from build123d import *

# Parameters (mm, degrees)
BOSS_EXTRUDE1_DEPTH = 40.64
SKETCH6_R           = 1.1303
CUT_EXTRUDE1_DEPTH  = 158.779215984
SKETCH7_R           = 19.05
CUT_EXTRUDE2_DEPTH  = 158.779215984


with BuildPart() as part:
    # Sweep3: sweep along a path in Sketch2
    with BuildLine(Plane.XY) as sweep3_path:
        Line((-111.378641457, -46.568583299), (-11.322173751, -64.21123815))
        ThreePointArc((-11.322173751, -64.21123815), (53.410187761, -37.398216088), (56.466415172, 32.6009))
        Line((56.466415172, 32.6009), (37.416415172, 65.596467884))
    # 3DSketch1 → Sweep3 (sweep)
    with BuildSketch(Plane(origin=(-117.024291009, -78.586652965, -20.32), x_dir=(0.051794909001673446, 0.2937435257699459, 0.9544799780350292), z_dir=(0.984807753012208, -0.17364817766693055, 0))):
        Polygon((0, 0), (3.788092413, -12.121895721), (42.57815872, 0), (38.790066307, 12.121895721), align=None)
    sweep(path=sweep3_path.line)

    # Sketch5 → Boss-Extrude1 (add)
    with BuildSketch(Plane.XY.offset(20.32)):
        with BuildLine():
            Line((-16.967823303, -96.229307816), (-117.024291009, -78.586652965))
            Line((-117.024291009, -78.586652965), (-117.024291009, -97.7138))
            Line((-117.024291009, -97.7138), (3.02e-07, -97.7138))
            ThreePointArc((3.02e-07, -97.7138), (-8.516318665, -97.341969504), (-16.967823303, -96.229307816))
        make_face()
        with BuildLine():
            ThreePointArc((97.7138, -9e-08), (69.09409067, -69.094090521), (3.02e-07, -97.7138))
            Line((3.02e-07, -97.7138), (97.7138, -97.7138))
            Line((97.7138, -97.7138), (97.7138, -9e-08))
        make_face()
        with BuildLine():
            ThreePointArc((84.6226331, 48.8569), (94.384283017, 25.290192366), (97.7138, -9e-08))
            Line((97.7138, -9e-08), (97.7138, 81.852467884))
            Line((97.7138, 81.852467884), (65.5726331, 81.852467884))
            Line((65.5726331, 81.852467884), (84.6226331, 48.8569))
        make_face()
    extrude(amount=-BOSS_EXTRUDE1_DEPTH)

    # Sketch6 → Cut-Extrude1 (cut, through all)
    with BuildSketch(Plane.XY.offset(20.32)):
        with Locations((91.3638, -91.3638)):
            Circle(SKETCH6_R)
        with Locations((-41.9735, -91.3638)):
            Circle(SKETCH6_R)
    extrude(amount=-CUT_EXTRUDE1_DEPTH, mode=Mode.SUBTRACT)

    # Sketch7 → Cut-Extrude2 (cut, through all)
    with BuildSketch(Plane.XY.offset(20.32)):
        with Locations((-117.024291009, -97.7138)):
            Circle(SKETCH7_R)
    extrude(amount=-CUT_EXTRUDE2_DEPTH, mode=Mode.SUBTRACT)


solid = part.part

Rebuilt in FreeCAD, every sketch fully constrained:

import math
import FreeCAD as App
import Part
import Sketcher
Q = App.Units.Quantity

doc = App.newDocument("Part")
body = doc.addObject("PartDesign::Body", "Body")

sketch1 = doc.addObject("Sketcher::SketchObject", "Sketch")
body.addObject(sketch1)
sketch1.Placement = App.Placement(App.Vector(-117.024291, -78.586653, -20.32), App.Rotation(App.Vector(0.051794909, 0.293743526, 0.954479978), App.Vector(-0.165743709, -0.939979282, 0.298274993), App.Vector(0.984807753, -0.173648178, 0), "ZXY"))
sketch1.addGeometry(Part.LineSegment(App.Vector(0, 0, 0), App.Vector(4, -12, 0)), False)
sketch1.addGeometry(Part.LineSegment(App.Vector(4, -12, 0), App.Vector(43, 0, 0)), False)
sketch1.addGeometry(Part.LineSegment(App.Vector(43, 0, 0), App.Vector(39, 12, 0)), False)
sketch1.addGeometry(Part.LineSegment(App.Vector(39, 12, 0), App.Vector(0, 0, 0)), False)
sketch1.addConstraint(Sketcher.Constraint("Coincident", 0, 2, 1, 1))
sketch1.addConstraint(Sketcher.Constraint("Coincident", 1, 2, 2, 1))
sketch1.addConstraint(Sketcher.Constraint("Coincident", 2, 2, 3, 1))
sketch1.addConstraint(Sketcher.Constraint("Coincident", 3, 2, 0, 1))
sketch1.addConstraint(Sketcher.Constraint("Coincident", 3, 2, -1, 1))
sketch1.addConstraint(Sketcher.Constraint("PointOnObject", 1, 2, -1))
sketch1.addConstraint(Sketcher.Constraint("Perpendicular", 0, 1))
sketch1.addConstraint(Sketcher.Constraint("Perpendicular", 1, 2))
sketch1.addConstraint(Sketcher.Constraint("Perpendicular", 2, 3))
sketch1.addConstraint(Sketcher.Constraint("Distance", 0, Q("0.5 in")))
sketch1.addConstraint(Sketcher.Constraint("Distance", 1, Q("1.6 in")))

sketch2 = doc.addObject("Sketcher::SketchObject", "Sketch001")
body.addObject(sketch2)
sketch2.AttachmentSupport = (doc.XY_Plane, [""])
sketch2.MapMode = "FlatFace"
sketch2.addGeometry(Part.LineSegment(App.Vector(-111, -47, 0), App.Vector(-11, -64, 0)), False)
sketch2.addGeometry(Part.ArcOfCircle(Part.Circle(App.Vector(0, 0, 0), App.Vector(0, 0, 1), 65), math.radians(-100), math.radians(30)), False)
sketch2.addGeometry(Part.LineSegment(App.Vector(56, 33, 0), App.Vector(37, 66, 0)), False)
sketch2.addConstraint(Sketcher.Constraint("Tangent", 0, 2, 1, 1))
sketch2.addConstraint(Sketcher.Constraint("Tangent", 1, 2, 2, 1))
sketch2.addConstraint(Sketcher.Constraint("Coincident", 1, 3, -1, 1))
sketch2.addConstraint(Sketcher.Constraint("Distance", 0, Q("4 in")))
sketch2.addConstraint(Sketcher.Constraint("Angle", 0, Q("-10 deg")))
sketch2.addConstraint(Sketcher.Constraint("Angle", 2, Q("120 deg")))
sketch2.addConstraint(Sketcher.Constraint("Radius", 1, Q("2.567 in")))
sketch2.addConstraint(Sketcher.Constraint("Distance", 2, Q("1.5 in")))
doc.recompute()

additivepipe = doc.addObject("PartDesign::AdditivePipe", "AdditivePipe")
body.addObject(additivepipe)
additivepipe.Profile = sketch1
additivepipe.Spine = (sketch2, ["Edge1", "Edge2", "Edge3"])

sketch3 = doc.addObject("Sketcher::SketchObject", "Sketch002")
body.addObject(sketch3)
sketch3.AttachmentSupport = (doc.XY_Plane, [""])
sketch3.MapMode = "FlatFace"
sketch3.AttachmentOffset = App.Placement(App.Vector(0, 0, 0.8 * 25.4), App.Rotation())
sketch3.addGeometry(Part.LineSegment(App.Vector(-17, -96, 0), App.Vector(-117, -79, 0)), False)
sketch3.addGeometry(Part.LineSegment(App.Vector(-117, -79, 0), App.Vector(-117, -98, 0)), False)
sketch3.addGeometry(Part.LineSegment(App.Vector(-117, -98, 0), App.Vector(0, -98, 0)), False)
sketch3.addGeometry(Part.ArcOfCircle(Part.Circle(App.Vector(0, 0, 0), App.Vector(0, 0, 1), 98), math.radians(-100), math.radians(-90)), False)
sketch3.addGeometry(Part.ArcOfCircle(Part.Circle(App.Vector(0, 0, 0), App.Vector(0, 0, 1), 98), math.radians(-90), math.radians(0)), False)
sketch3.addGeometry(Part.LineSegment(App.Vector(0, -98, 0), App.Vector(98, -98, 0)), False)
sketch3.addGeometry(Part.LineSegment(App.Vector(98, -98, 0), App.Vector(98, 0, 0)), False)
sketch3.addGeometry(Part.ArcOfCircle(Part.Circle(App.Vector(0, 0, 0), App.Vector(0, 0, 1), 98), math.radians(0), math.radians(30)), False)
sketch3.addGeometry(Part.LineSegment(App.Vector(98, 0, 0), App.Vector(98, 82, 0)), False)
sketch3.addGeometry(Part.LineSegment(App.Vector(98, 82, 0), App.Vector(66, 82, 0)), False)
sketch3.addGeometry(Part.LineSegment(App.Vector(66, 82, 0), App.Vector(85, 49, 0)), False)
sketch3.addConstraint(Sketcher.Constraint("Coincident", 0, 2, 1, 1))
sketch3.addConstraint(Sketcher.Constraint("Coincident", 1, 2, 2, 1))
sketch3.addConstraint(Sketcher.Constraint("Tangent", 2, 2, 3, 2))
sketch3.addConstraint(Sketcher.Constraint("Tangent", 3, 1, 0, 1))
sketch3.addConstraint(Sketcher.Constraint("Tangent", 4, 1, 5, 1))
sketch3.addConstraint(Sketcher.Constraint("Coincident", 5, 2, 6, 1))
sketch3.addConstraint(Sketcher.Constraint("Tangent", 6, 2, 4, 2))
sketch3.addConstraint(Sketcher.Constraint("Tangent", 7, 1, 8, 1))
sketch3.addConstraint(Sketcher.Constraint("Coincident", 8, 2, 9, 1))
sketch3.addConstraint(Sketcher.Constraint("Coincident", 9, 2, 10, 1))
sketch3.addConstraint(Sketcher.Constraint("Tangent", 10, 2, 7, 2))
sketch3.addConstraint(Sketcher.Constraint("Vertical", 1))
sketch3.addConstraint(Sketcher.Constraint("Horizontal", 2))
sketch3.addConstraint(Sketcher.Constraint("Horizontal", 5))
sketch3.addConstraint(Sketcher.Constraint("Vertical", 6))
sketch3.addConstraint(Sketcher.Constraint("Vertical", 8))
sketch3.addConstraint(Sketcher.Constraint("Horizontal", 9))
sketch3.addConstraint(Sketcher.Constraint("Coincident", 3, 3, -1, 1))
sketch3.addConstraint(Sketcher.Constraint("Coincident", 4, 3, -1, 1))
sketch3.addConstraint(Sketcher.Constraint("Coincident", 7, 3, -1, 1))
sketch3.addConstraint(Sketcher.Constraint("Equal", 3, 4))
sketch3.addConstraint(Sketcher.Constraint("Equal", 4, 7))
sketch3.addConstraint(Sketcher.Constraint("Distance", 0, Q("4 in")))
sketch3.addConstraint(Sketcher.Constraint("Angle", 0, Q("170 deg")))
sketch3.addConstraint(Sketcher.Constraint("Angle", 10, Q("-60 deg")))
sketch3.addConstraint(Sketcher.Constraint("Radius", 3, Q("3.847 in")))
sketch3.addConstraint(Sketcher.Constraint("Distance", 10, Q("1.5 in")))
pad1 = doc.addObject("PartDesign::Pad", "Pad")
body.addObject(pad1)
pad1.Profile = sketch3
pad1.Length = Q("1.6 in")
pad1.Reversed = True

sketch4 = doc.addObject("Sketcher::SketchObject", "Sketch003")
body.addObject(sketch4)
sketch4.AttachmentSupport = (doc.XY_Plane, [""])
sketch4.MapMode = "FlatFace"
sketch4.AttachmentOffset = App.Placement(App.Vector(0, 0, 0.8 * 25.4), App.Rotation())
sketch4.addGeometry(Part.Circle(App.Vector(91.4, -91.4, 0), App.Vector(0, 0, 1), 1.1), False)
sketch4.addGeometry(Part.Circle(App.Vector(-42, -91.4, 0), App.Vector(0, 0, 1), 1.1), False)
sketch4.addConstraint(Sketcher.Constraint("Equal", 0, 1))
sketch4.addConstraint(Sketcher.Constraint("Horizontal", 0, 3, 1, 3))
sketch4.addConstraint(Sketcher.Constraint("Diameter", 0, Q("0.089 in")))
sketch4.addConstraint(Sketcher.Constraint("DistanceX", -1, 1, 0, 3, Q("3.597 in")))
sketch4.addConstraint(Sketcher.Constraint("DistanceY", 0, 3, -1, 1, Q("3.597 in")))
sketch4.addConstraint(Sketcher.Constraint("DistanceX", 1, 3, -1, 1, Q("1.6525 in")))
pocket1 = doc.addObject("PartDesign::Pocket", "Pocket")
body.addObject(pocket1)
pocket1.Profile = sketch4
pocket1.Type = "ThroughAll"

sketch5 = doc.addObject("Sketcher::SketchObject", "Sketch004")
body.addObject(sketch5)
sketch5.AttachmentSupport = (doc.XY_Plane, [""])
sketch5.MapMode = "FlatFace"
sketch5.AttachmentOffset = App.Placement(App.Vector(0, 0, 0.8 * 25.4), App.Rotation())
sketch5.addGeometry(Part.Circle(App.Vector(-117, -98, 0), App.Vector(0, 0, 1), 19), False)
sketch5.addConstraint(Sketcher.Constraint("Diameter", 0, Q("1.5 in")))
sketch5.addConstraint(Sketcher.Constraint("DistanceY", 0, 3, -1, 1, Q("3.847 in")))
sketch5.addConstraint(Sketcher.Constraint("DistanceX", 0, 3, -1, 1, 117.024291))
pocket2 = doc.addObject("PartDesign::Pocket", "Pocket001")
body.addObject(pocket2)
pocket2.Profile = sketch5
pocket2.Type = "ThroughAll"

doc.recompute()
